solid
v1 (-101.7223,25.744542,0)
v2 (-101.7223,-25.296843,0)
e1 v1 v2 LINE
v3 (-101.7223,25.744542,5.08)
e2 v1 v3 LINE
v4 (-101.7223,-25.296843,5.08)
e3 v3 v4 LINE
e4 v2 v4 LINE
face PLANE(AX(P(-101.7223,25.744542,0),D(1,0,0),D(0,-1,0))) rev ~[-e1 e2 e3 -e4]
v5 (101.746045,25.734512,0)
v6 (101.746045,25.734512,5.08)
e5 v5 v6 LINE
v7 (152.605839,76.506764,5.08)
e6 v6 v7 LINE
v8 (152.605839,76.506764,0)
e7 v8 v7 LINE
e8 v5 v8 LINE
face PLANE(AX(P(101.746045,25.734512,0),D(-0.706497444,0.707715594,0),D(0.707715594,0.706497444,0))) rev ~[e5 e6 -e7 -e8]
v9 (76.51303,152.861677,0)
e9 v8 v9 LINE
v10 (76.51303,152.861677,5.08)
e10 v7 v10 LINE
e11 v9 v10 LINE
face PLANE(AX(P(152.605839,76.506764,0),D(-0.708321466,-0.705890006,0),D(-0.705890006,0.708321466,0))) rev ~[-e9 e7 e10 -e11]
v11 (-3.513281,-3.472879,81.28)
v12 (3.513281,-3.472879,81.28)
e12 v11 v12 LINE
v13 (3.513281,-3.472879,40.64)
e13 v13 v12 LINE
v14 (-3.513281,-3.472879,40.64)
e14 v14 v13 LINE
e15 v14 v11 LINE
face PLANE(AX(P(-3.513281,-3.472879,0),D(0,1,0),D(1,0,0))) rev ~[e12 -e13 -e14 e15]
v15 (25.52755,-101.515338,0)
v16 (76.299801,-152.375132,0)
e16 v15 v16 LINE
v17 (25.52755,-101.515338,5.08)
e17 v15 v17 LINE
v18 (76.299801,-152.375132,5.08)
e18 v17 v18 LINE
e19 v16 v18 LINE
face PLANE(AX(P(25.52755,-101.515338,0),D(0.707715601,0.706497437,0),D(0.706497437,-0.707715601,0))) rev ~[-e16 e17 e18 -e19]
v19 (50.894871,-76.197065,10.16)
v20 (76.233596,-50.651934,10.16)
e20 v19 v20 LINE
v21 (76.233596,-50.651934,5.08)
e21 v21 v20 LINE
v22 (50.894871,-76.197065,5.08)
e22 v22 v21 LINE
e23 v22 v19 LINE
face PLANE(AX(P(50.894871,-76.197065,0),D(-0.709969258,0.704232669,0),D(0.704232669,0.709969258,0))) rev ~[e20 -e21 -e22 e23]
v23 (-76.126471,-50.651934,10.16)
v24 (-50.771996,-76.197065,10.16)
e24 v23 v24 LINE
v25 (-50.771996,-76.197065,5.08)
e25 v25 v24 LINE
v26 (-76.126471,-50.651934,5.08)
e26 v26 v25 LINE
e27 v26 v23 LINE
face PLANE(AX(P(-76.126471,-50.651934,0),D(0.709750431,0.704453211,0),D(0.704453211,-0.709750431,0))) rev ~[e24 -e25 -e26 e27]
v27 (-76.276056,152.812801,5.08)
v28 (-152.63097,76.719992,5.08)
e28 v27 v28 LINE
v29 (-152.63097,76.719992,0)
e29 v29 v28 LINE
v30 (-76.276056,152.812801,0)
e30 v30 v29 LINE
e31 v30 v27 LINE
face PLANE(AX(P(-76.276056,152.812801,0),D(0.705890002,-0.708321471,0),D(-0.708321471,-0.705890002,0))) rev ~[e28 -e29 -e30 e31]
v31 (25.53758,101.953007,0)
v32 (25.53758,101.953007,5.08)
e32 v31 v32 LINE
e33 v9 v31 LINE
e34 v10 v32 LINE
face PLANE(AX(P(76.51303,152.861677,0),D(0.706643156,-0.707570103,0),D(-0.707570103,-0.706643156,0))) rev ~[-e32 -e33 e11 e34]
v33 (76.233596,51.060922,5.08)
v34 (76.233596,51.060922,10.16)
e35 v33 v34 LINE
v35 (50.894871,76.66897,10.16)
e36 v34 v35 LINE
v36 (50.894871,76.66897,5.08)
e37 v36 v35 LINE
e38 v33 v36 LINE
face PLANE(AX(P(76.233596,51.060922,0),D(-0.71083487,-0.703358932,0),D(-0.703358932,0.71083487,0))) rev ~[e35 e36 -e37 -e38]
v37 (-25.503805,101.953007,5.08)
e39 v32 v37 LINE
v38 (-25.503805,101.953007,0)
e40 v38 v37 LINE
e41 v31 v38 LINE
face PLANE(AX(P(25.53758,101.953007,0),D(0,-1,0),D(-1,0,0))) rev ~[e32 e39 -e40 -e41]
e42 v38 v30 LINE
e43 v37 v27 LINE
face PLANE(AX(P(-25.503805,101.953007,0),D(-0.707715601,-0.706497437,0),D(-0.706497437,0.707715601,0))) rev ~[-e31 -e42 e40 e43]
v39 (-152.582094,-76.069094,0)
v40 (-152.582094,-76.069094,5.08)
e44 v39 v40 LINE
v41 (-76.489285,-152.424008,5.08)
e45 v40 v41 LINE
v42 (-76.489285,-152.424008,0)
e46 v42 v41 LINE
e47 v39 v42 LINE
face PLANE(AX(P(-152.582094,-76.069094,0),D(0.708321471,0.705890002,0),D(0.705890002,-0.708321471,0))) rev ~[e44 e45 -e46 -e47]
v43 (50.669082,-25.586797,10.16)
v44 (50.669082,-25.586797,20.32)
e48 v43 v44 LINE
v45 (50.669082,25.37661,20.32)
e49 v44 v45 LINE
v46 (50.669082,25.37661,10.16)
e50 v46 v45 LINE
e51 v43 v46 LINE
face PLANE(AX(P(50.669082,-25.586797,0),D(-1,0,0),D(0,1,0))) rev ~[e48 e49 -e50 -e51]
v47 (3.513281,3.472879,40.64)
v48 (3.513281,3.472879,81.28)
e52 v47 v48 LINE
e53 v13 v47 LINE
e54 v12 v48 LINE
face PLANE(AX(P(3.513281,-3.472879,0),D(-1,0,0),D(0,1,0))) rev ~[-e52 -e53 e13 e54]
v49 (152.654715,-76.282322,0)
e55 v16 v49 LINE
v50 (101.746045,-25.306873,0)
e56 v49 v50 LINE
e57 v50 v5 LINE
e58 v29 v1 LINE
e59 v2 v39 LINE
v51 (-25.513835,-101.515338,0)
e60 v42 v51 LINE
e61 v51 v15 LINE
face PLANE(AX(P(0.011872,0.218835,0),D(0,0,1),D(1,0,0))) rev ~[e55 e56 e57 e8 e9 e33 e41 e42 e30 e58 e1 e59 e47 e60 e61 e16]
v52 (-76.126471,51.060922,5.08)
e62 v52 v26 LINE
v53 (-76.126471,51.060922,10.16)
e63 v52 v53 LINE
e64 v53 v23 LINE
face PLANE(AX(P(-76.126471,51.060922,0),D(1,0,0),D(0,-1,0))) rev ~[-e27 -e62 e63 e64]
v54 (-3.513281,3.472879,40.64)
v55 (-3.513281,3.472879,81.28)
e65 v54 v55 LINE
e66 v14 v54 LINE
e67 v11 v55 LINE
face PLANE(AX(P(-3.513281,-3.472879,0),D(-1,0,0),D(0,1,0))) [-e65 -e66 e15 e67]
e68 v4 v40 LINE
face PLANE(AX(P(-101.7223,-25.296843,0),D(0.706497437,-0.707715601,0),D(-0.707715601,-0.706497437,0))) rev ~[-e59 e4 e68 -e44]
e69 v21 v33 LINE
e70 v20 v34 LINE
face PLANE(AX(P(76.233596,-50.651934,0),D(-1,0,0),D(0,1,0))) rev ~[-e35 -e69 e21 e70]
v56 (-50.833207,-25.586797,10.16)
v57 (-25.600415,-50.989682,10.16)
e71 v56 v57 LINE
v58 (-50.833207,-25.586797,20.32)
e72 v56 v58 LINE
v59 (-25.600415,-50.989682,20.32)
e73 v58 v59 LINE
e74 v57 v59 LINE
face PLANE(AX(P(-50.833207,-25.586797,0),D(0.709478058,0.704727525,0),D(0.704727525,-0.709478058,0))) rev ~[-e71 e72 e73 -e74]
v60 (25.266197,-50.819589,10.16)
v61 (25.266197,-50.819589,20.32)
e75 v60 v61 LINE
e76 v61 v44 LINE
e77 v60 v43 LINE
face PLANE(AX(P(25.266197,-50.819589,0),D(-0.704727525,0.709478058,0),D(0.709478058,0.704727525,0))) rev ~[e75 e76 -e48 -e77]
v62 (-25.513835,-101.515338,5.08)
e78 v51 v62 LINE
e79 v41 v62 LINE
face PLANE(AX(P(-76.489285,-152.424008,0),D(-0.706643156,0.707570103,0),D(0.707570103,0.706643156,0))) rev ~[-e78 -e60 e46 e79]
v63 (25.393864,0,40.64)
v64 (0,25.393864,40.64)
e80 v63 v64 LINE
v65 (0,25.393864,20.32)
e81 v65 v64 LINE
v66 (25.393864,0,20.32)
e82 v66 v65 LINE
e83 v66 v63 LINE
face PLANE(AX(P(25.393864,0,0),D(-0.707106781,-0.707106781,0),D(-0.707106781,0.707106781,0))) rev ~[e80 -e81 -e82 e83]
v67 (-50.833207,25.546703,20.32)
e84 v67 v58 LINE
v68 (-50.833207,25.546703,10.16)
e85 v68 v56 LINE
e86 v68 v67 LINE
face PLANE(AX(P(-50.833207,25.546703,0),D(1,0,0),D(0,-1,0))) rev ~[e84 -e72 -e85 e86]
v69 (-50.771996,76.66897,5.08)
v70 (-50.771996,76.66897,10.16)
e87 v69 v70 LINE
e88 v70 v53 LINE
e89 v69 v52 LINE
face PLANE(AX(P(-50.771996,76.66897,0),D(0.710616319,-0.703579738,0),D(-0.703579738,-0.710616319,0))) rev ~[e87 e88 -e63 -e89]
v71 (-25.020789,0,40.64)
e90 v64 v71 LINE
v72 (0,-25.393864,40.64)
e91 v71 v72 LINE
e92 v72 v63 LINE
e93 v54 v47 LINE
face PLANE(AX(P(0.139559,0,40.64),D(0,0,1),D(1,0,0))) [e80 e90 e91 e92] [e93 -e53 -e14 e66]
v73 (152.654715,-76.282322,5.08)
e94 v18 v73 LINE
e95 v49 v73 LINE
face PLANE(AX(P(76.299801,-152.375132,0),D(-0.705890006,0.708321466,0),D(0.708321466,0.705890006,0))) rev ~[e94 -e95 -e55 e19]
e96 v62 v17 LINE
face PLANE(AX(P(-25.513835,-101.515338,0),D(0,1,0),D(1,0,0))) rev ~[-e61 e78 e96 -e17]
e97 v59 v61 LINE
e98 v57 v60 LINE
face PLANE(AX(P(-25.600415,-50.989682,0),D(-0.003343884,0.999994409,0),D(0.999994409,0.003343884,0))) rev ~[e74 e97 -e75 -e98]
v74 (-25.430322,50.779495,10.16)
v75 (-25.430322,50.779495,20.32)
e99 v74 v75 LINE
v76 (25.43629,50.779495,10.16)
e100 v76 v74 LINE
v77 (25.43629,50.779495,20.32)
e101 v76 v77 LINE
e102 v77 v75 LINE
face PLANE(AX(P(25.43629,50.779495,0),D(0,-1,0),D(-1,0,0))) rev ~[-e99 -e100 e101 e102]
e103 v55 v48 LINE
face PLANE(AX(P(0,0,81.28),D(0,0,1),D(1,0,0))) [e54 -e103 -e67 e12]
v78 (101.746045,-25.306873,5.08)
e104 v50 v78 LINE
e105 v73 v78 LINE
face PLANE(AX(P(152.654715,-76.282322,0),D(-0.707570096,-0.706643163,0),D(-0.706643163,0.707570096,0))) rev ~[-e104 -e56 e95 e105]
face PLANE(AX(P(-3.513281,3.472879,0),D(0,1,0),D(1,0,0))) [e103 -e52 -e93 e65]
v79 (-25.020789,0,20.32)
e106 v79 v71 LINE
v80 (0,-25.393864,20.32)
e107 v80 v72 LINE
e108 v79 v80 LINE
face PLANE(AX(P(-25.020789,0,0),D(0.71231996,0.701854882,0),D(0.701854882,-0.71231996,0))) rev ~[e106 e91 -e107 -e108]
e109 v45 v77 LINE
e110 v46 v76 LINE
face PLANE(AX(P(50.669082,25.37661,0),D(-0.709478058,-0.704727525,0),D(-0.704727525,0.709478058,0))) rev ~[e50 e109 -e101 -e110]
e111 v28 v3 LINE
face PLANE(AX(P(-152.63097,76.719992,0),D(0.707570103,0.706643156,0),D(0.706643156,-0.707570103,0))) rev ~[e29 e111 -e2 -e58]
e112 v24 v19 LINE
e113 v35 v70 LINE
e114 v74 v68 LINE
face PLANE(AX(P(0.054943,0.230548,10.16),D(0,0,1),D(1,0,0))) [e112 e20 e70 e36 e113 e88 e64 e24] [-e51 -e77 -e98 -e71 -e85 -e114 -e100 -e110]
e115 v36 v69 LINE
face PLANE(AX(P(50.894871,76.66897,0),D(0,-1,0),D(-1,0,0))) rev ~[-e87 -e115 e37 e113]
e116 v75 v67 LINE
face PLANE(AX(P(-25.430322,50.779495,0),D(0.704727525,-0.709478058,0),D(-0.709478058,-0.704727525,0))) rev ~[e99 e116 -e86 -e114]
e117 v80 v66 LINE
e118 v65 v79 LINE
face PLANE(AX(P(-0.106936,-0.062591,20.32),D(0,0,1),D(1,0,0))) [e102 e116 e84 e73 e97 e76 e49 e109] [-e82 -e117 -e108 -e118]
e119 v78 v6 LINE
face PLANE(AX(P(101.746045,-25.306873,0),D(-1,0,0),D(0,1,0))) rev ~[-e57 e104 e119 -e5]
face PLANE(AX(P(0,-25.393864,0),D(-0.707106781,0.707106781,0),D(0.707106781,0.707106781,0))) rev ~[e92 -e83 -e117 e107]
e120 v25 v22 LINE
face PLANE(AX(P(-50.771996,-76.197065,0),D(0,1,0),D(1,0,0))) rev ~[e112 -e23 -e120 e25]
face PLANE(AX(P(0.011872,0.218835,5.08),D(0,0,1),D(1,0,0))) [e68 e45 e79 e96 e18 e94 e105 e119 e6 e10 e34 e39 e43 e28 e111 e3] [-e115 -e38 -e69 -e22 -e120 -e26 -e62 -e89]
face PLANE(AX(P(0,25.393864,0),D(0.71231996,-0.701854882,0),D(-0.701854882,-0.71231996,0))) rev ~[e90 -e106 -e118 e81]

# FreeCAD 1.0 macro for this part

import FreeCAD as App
import Part
import Sketcher
from FreeCAD import Vector
Q = App.Units.Quantity


def add_polygon(sketch, points):
    """Adds a closed chain of lines whose ends are joined by coincident constraints."""
    first, n = sketch.GeometryCount, len(points)
    for a, b in zip(points, points[1:] + points[:1]):
        sketch.addGeometry(Part.LineSegment(App.Vector(*a, 0), App.Vector(*b, 0)), False)
    for i in range(n):
        sketch.addConstraint(Sketcher.Constraint("Coincident", first + i, 2, first + (i + 1) % n, 1))

doc = App.newDocument("Part")
body = doc.addObject("PartDesign::Body", "Body")

sketch1 = body.newObject("Sketcher::SketchObject", "Sketch")
sketch1.AttachmentSupport = (doc.getObject("XY_Plane"), [""])
sketch1.MapMode = "FlatFace"
add_polygon(sketch1, [(-3.513281, 3.472879), (-3.513281, -3.472879), (3.513281, -3.472879), (3.513281, 3.472879)])
sketch1.addConstraint([
    Sketcher.Constraint("Vertical", 0),
    Sketcher.Constraint("Horizontal", 1),
    Sketcher.Constraint("Vertical", 2),
    Sketcher.Constraint("Horizontal", 3),
    Sketcher.Constraint("Symmetric", 0, 2, 2, 2, -1, 1),
    Sketcher.Constraint("DistanceX", 1, 1, 1, 2, 7.026562),
    Sketcher.Constraint("DistanceY", 0, 2, 0, 1, 6.945758),
])
pad1 = body.newObject("PartDesign::Pad", "Pad")
pad1.Profile = sketch1
pad1.Length = Q("3.2 in")

sketch2 = body.newObject("Sketcher::SketchObject", "Sketch001")
sketch2.AttachmentSupport = (doc.getObject("XY_Plane"), [""])
sketch2.MapMode = "FlatFace"
add_polygon(sketch2, [(0, 25.393864), (-25.020789, 0), (0, -25.393864), (25.393864, 0)])
sketch2.addConstraint([
    Sketcher.Constraint("Symmetric", 1, 2, 3, 2, -1, 1),
    Sketcher.Constraint("PointOnObject", 0, 2, -1),
    Sketcher.Constraint("PointOnObject", 1, 2, -2),
    Sketcher.Constraint("PointOnObject", 2, 2, -1),
    Sketcher.Constraint("Perpendicular", 2, 3),
    Sketcher.Constraint("Distance", 0, 35.649519),
    Sketcher.Constraint("DistanceX", 0, 2, -1, 1, 25.020789),
])
pad2 = body.newObject("PartDesign::Pad", "Pad001")
pad2.Profile = sketch2
pad2.Length = Q("1.6 in")

sketch3 = body.newObject("Sketcher::SketchObject", "Sketch002")
sketch3.AttachmentSupport = (doc.getObject("XY_Plane"), [""])
sketch3.MapMode = "FlatFace"
add_polygon(sketch3, [(25.43629, 50.779495), (-25.430322, 50.779495), (-50.833207, 25.546703), (-50.833207, -25.586797), (-25.600415, -50.989682), (25.266197, -50.819589), (50.669082, -25.586797), (50.669082, 25.37661)])
sketch3.addConstraint([
    Sketcher.Constraint("Horizontal", 0),
    Sketcher.Constraint("Vertical", 2),
    Sketcher.Constraint("Vertical", 6),
    Sketcher.Constraint("Perpendicular", 1, 3),
    Sketcher.Constraint("Perpendicular", 3, 5),
    Sketcher.Constraint("Perpendicular", 5, 7),
    Sketcher.Constraint("Horizontal", 2, 2, 5, 2),
    Sketcher.Constraint("Equal", 1, 3),
    Sketcher.Constraint("Equal", 3, 5),
    Sketcher.Constraint("Equal", 5, 7),
    Sketcher.Constraint("DistanceY", 2, 2, 2, 1, 51.1335),
    Sketcher.Constraint("DistanceY", 4, 2, 6, 2, 76.196199),
    Sketcher.Constraint("DistanceX", 0, 2, 0, 1, 50.866612),
    Sketcher.Constraint("DistanceY", 6, 1, 6, 2, 50.963407),
    Sketcher.Constraint("DistanceY", 4, 2, -1, 1, 50.819589),
    Sketcher.Constraint("DistanceX", -1, 1, 7, 2, 25.43629),
])
pad3 = body.newObject("PartDesign::Pad", "Pad002")
pad3.Profile = sketch3
pad3.Length = Q("0.8 in")

sketch4 = body.newObject("Sketcher::SketchObject", "Sketch003")
sketch4.AttachmentSupport = (doc.getObject("XY_Plane"), [""])
sketch4.MapMode = "FlatFace"
add_polygon(sketch4, [(76.233596, -50.651934), (76.233596, 51.060922), (50.894871, 76.66897), (-50.771996, 76.66897), (-76.126471, 51.060922), (-76.126471, -50.651934), (-50.771996, -76.197065), (50.894871, -76.197065)])
sketch4.addConstraint([
    Sketcher.Constraint("Vertical", 0),
    Sketcher.Constraint("Horizontal", 2),
    Sketcher.Constraint("Vertical", 4),
    Sketcher.Constraint("Horizontal", 6),
    Sketcher.Constraint("Horizontal", 0, 2, 3, 2),
    Sketcher.Constraint("Horizontal", 4, 2, 7, 2),
    Sketcher.Constraint("Vertical", 2, 2, 5, 2),
    Sketcher.Constraint("Vertical", 1, 2, 6, 2),
    Sketcher.Constraint("Distance", 3, 36.036392),
    Sketcher.Constraint("Distance", 5, 35.991709),
    Sketcher.Constraint("DistanceX", 2, 2, 2, 1, 101.666867),
    Sketcher.Constraint("DistanceY", 0, 1, 0, 2, 101.712856),
    Sketcher.Constraint("DistanceY", -1, 1, 0, 2, 51.060922),
    Sketcher.Constraint("DistanceX", -1, 1, 1, 2, 50.894871),
    Sketcher.Constraint("DistanceY", -1, 1, 1, 2, 76.66897),
    Sketcher.Constraint("Distance", 1, 36.025312),
])
pad4 = body.newObject("PartDesign::Pad", "Pad003")
pad4.Profile = sketch4
pad4.Length = Q("0.4 in")

sketch5 = body.newObject("Sketcher::SketchObject", "Sketch004")
sketch5.AttachmentSupport = (doc.getObject("XY_Plane"), [""])
sketch5.MapMode = "FlatFace"
add_polygon(sketch5, [(-25.513835, -101.515338), (25.52755, -101.515338), (76.299801, -152.375132), (152.654715, -76.282322), (101.746045, -25.306873), (101.746045, 25.734512), (152.605839, 76.506764), (76.51303, 152.861677), (25.53758, 101.953007), (-25.503805, 101.953007), (-76.276056, 152.812801), (-152.63097, 76.719992), (-101.7223, 25.744542), (-101.7223, -25.296843), (-152.582094, -76.069094), (-76.489285, -152.424008)])
sketch5.addConstraint([
    Sketcher.Constraint("Horizontal", 0),
    Sketcher.Constraint("Vertical", 4),
    Sketcher.Constraint("Horizontal", 8),
    Sketcher.Constraint("Vertical", 12),
    Sketcher.Constraint("Perpendicular", 1, 5),
    Sketcher.Constraint("Perpendicular", 2, 6),
    Sketcher.Constraint("Perpendicular", 3, 7),
    Sketcher.Constraint("Perpendicular", 5, 9),
    Sketcher.Constraint("Perpendicular", 6, 10),
    Sketcher.Constraint("Perpendicular", 7, 11),
    Sketcher.Constraint("Perpendicular", 9, 13),
    Sketcher.Constraint("Perpendicular", 10, 14),
    Sketcher.Constraint("Perpendicular", 11, 15),
    Sketcher.Constraint("Equal", 0, 8),
    Sketcher.Constraint("Equal", 8, 4),
    Sketcher.Constraint("Equal", 4, 12),
    Sketcher.Constraint("Equal", 1, 5),
    Sketcher.Constraint("Equal", 2, 6),
    Sketcher.Constraint("Equal", 3, 7),
    Sketcher.Constraint("Equal", 5, 9),
    Sketcher.Constraint("Equal", 6, 10),
    Sketcher.Constraint("Equal", 7, 11),
    Sketcher.Constraint("Equal", 9, 13),
    Sketcher.Constraint("DistanceX", -1, 1, 1, 2, 76.299801),
    Sketcher.Constraint("DistanceY", -1, 1, 9, 2, 152.812801),
    Sketcher.Constraint("DistanceX", 11, 2, -1, 1, 101.7223),
    Sketcher.Constraint("DistanceY", 2, 2, 6, 2, 229.143999),
    Sketcher.Constraint("Distance", 2, 107.796979),
    Sketcher.Constraint("DistanceX", 0, 1, 0, 2, 51.041385),
    Sketcher.Constraint("DistanceX", -1, 1, 0, 2, 25.52755),
    Sketcher.Constraint("DistanceY", 0, 2, -1, 1, 101.515338),
    Sketcher.Constraint("DistanceY", 1, 2, -1, 1, 152.375132),
])
pad5 = body.newObject("PartDesign::Pad", "Pad004")
pad5.Profile = sketch5
pad5.Length = Q("0.2 in")

doc.recompute()
